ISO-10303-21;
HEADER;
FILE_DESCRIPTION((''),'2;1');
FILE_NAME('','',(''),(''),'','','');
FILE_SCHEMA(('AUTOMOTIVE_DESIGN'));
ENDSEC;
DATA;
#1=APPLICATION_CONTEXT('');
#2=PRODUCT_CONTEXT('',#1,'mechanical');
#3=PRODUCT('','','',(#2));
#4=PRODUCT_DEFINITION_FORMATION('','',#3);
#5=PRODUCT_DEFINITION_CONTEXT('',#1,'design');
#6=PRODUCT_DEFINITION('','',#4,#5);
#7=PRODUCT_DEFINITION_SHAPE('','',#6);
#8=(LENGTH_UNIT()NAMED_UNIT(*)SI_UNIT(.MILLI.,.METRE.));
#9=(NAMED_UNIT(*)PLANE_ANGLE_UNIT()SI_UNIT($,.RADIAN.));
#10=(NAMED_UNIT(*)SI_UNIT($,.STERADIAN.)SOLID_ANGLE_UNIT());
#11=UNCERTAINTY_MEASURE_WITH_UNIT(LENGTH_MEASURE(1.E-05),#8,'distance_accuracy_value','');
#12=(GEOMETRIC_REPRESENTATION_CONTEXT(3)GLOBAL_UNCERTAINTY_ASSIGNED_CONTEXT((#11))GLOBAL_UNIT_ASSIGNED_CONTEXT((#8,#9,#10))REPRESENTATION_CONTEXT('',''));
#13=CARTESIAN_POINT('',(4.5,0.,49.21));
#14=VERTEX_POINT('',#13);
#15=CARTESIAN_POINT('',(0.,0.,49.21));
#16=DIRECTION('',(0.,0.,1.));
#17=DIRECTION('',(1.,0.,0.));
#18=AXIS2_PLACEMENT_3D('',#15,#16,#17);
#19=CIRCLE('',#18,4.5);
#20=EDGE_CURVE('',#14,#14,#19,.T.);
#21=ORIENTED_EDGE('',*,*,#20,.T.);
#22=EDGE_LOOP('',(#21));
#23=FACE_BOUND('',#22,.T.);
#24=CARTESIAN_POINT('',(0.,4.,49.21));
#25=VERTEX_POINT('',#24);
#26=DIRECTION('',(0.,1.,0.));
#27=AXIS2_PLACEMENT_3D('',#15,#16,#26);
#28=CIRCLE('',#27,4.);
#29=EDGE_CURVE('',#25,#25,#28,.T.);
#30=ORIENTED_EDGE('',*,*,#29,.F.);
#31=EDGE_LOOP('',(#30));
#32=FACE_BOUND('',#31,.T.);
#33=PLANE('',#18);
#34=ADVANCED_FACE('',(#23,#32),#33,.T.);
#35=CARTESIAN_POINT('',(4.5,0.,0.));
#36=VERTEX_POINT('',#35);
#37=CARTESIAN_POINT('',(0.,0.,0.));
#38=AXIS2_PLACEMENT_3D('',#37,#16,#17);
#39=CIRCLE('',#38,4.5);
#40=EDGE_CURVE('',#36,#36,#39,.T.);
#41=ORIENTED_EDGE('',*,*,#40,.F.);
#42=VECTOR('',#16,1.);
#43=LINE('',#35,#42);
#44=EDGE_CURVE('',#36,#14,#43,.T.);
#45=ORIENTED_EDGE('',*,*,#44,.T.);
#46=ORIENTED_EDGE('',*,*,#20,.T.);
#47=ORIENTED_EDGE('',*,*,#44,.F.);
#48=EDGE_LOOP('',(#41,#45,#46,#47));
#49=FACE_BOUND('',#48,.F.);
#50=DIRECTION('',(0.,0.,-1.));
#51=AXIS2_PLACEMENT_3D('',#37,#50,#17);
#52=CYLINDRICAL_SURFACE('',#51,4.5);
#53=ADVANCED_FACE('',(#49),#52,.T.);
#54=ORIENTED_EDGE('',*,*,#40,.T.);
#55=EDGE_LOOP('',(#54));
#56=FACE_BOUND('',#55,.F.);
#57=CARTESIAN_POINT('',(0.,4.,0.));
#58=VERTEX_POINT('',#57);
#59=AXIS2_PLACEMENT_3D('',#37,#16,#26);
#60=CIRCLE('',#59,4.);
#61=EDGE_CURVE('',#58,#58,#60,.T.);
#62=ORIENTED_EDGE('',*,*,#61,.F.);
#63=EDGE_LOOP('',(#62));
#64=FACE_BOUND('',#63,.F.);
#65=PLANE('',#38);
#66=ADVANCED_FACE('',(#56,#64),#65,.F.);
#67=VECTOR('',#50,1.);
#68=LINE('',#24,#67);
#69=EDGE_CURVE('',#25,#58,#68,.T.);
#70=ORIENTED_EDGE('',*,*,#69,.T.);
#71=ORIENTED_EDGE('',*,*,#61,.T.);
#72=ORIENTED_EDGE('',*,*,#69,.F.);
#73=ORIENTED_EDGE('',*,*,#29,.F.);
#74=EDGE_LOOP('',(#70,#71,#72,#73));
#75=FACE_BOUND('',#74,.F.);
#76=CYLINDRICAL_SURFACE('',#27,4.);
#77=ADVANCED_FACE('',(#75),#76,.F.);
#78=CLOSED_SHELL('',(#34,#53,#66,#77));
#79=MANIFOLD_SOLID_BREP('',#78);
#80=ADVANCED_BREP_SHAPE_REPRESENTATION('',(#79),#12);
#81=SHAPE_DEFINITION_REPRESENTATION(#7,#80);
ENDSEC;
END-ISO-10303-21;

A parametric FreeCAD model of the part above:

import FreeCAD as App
import Part
import Sketcher
from FreeCAD import Vector
Q = App.Units.Quantity

doc = App.newDocument("Part")
body = doc.addObject("PartDesign::Body", "Body")

sketch1 = doc.addObject("Sketcher::SketchObject", "Sketch")
body.addObject(sketch1)
sketch1.AttachmentSupport = (doc.XY_Plane, [""])
sketch1.MapMode = "FlatFace"
sketch1.addGeometry(Part.Circle(Vector(0, 0, 0), Vector(0, 0, 1), 4.5), False)
sketch1.addConstraint([
    Sketcher.Constraint("Coincident", 0, 3, -1, 1),
    Sketcher.Constraint("Diameter", 0, Q("9 mm")),
])
pad1 = doc.addObject("PartDesign::Pad", "Pad")
body.addObject(pad1)
pad1.Profile = sketch1
pad1.Length = 49.21

sketch2 = doc.addObject("Sketcher::SketchObject", "Sketch001")
body.addObject(sketch2)
sketch2.AttachmentSupport = (doc.XY_Plane, [""])
sketch2.MapMode = "FlatFace"
sketch2.AttachmentOffset = App.Placement(Vector(0, 0, 49.21), App.Rotation())
sketch2.addGeometry(Part.Circle(Vector(0, 0, 0), Vector(0, 0, 1), 4), False)
sketch2.addConstraint([
    Sketcher.Constraint("Coincident", 0, 3, -1, 1),
    Sketcher.Constraint("Diameter", 0, Q("8 mm")),
])
pocket1 = doc.addObject("PartDesign::Pocket", "Pocket")
body.addObject(pocket1)
pocket1.Profile = sketch2
pocket1.Length = 52.827

doc.recompute()
